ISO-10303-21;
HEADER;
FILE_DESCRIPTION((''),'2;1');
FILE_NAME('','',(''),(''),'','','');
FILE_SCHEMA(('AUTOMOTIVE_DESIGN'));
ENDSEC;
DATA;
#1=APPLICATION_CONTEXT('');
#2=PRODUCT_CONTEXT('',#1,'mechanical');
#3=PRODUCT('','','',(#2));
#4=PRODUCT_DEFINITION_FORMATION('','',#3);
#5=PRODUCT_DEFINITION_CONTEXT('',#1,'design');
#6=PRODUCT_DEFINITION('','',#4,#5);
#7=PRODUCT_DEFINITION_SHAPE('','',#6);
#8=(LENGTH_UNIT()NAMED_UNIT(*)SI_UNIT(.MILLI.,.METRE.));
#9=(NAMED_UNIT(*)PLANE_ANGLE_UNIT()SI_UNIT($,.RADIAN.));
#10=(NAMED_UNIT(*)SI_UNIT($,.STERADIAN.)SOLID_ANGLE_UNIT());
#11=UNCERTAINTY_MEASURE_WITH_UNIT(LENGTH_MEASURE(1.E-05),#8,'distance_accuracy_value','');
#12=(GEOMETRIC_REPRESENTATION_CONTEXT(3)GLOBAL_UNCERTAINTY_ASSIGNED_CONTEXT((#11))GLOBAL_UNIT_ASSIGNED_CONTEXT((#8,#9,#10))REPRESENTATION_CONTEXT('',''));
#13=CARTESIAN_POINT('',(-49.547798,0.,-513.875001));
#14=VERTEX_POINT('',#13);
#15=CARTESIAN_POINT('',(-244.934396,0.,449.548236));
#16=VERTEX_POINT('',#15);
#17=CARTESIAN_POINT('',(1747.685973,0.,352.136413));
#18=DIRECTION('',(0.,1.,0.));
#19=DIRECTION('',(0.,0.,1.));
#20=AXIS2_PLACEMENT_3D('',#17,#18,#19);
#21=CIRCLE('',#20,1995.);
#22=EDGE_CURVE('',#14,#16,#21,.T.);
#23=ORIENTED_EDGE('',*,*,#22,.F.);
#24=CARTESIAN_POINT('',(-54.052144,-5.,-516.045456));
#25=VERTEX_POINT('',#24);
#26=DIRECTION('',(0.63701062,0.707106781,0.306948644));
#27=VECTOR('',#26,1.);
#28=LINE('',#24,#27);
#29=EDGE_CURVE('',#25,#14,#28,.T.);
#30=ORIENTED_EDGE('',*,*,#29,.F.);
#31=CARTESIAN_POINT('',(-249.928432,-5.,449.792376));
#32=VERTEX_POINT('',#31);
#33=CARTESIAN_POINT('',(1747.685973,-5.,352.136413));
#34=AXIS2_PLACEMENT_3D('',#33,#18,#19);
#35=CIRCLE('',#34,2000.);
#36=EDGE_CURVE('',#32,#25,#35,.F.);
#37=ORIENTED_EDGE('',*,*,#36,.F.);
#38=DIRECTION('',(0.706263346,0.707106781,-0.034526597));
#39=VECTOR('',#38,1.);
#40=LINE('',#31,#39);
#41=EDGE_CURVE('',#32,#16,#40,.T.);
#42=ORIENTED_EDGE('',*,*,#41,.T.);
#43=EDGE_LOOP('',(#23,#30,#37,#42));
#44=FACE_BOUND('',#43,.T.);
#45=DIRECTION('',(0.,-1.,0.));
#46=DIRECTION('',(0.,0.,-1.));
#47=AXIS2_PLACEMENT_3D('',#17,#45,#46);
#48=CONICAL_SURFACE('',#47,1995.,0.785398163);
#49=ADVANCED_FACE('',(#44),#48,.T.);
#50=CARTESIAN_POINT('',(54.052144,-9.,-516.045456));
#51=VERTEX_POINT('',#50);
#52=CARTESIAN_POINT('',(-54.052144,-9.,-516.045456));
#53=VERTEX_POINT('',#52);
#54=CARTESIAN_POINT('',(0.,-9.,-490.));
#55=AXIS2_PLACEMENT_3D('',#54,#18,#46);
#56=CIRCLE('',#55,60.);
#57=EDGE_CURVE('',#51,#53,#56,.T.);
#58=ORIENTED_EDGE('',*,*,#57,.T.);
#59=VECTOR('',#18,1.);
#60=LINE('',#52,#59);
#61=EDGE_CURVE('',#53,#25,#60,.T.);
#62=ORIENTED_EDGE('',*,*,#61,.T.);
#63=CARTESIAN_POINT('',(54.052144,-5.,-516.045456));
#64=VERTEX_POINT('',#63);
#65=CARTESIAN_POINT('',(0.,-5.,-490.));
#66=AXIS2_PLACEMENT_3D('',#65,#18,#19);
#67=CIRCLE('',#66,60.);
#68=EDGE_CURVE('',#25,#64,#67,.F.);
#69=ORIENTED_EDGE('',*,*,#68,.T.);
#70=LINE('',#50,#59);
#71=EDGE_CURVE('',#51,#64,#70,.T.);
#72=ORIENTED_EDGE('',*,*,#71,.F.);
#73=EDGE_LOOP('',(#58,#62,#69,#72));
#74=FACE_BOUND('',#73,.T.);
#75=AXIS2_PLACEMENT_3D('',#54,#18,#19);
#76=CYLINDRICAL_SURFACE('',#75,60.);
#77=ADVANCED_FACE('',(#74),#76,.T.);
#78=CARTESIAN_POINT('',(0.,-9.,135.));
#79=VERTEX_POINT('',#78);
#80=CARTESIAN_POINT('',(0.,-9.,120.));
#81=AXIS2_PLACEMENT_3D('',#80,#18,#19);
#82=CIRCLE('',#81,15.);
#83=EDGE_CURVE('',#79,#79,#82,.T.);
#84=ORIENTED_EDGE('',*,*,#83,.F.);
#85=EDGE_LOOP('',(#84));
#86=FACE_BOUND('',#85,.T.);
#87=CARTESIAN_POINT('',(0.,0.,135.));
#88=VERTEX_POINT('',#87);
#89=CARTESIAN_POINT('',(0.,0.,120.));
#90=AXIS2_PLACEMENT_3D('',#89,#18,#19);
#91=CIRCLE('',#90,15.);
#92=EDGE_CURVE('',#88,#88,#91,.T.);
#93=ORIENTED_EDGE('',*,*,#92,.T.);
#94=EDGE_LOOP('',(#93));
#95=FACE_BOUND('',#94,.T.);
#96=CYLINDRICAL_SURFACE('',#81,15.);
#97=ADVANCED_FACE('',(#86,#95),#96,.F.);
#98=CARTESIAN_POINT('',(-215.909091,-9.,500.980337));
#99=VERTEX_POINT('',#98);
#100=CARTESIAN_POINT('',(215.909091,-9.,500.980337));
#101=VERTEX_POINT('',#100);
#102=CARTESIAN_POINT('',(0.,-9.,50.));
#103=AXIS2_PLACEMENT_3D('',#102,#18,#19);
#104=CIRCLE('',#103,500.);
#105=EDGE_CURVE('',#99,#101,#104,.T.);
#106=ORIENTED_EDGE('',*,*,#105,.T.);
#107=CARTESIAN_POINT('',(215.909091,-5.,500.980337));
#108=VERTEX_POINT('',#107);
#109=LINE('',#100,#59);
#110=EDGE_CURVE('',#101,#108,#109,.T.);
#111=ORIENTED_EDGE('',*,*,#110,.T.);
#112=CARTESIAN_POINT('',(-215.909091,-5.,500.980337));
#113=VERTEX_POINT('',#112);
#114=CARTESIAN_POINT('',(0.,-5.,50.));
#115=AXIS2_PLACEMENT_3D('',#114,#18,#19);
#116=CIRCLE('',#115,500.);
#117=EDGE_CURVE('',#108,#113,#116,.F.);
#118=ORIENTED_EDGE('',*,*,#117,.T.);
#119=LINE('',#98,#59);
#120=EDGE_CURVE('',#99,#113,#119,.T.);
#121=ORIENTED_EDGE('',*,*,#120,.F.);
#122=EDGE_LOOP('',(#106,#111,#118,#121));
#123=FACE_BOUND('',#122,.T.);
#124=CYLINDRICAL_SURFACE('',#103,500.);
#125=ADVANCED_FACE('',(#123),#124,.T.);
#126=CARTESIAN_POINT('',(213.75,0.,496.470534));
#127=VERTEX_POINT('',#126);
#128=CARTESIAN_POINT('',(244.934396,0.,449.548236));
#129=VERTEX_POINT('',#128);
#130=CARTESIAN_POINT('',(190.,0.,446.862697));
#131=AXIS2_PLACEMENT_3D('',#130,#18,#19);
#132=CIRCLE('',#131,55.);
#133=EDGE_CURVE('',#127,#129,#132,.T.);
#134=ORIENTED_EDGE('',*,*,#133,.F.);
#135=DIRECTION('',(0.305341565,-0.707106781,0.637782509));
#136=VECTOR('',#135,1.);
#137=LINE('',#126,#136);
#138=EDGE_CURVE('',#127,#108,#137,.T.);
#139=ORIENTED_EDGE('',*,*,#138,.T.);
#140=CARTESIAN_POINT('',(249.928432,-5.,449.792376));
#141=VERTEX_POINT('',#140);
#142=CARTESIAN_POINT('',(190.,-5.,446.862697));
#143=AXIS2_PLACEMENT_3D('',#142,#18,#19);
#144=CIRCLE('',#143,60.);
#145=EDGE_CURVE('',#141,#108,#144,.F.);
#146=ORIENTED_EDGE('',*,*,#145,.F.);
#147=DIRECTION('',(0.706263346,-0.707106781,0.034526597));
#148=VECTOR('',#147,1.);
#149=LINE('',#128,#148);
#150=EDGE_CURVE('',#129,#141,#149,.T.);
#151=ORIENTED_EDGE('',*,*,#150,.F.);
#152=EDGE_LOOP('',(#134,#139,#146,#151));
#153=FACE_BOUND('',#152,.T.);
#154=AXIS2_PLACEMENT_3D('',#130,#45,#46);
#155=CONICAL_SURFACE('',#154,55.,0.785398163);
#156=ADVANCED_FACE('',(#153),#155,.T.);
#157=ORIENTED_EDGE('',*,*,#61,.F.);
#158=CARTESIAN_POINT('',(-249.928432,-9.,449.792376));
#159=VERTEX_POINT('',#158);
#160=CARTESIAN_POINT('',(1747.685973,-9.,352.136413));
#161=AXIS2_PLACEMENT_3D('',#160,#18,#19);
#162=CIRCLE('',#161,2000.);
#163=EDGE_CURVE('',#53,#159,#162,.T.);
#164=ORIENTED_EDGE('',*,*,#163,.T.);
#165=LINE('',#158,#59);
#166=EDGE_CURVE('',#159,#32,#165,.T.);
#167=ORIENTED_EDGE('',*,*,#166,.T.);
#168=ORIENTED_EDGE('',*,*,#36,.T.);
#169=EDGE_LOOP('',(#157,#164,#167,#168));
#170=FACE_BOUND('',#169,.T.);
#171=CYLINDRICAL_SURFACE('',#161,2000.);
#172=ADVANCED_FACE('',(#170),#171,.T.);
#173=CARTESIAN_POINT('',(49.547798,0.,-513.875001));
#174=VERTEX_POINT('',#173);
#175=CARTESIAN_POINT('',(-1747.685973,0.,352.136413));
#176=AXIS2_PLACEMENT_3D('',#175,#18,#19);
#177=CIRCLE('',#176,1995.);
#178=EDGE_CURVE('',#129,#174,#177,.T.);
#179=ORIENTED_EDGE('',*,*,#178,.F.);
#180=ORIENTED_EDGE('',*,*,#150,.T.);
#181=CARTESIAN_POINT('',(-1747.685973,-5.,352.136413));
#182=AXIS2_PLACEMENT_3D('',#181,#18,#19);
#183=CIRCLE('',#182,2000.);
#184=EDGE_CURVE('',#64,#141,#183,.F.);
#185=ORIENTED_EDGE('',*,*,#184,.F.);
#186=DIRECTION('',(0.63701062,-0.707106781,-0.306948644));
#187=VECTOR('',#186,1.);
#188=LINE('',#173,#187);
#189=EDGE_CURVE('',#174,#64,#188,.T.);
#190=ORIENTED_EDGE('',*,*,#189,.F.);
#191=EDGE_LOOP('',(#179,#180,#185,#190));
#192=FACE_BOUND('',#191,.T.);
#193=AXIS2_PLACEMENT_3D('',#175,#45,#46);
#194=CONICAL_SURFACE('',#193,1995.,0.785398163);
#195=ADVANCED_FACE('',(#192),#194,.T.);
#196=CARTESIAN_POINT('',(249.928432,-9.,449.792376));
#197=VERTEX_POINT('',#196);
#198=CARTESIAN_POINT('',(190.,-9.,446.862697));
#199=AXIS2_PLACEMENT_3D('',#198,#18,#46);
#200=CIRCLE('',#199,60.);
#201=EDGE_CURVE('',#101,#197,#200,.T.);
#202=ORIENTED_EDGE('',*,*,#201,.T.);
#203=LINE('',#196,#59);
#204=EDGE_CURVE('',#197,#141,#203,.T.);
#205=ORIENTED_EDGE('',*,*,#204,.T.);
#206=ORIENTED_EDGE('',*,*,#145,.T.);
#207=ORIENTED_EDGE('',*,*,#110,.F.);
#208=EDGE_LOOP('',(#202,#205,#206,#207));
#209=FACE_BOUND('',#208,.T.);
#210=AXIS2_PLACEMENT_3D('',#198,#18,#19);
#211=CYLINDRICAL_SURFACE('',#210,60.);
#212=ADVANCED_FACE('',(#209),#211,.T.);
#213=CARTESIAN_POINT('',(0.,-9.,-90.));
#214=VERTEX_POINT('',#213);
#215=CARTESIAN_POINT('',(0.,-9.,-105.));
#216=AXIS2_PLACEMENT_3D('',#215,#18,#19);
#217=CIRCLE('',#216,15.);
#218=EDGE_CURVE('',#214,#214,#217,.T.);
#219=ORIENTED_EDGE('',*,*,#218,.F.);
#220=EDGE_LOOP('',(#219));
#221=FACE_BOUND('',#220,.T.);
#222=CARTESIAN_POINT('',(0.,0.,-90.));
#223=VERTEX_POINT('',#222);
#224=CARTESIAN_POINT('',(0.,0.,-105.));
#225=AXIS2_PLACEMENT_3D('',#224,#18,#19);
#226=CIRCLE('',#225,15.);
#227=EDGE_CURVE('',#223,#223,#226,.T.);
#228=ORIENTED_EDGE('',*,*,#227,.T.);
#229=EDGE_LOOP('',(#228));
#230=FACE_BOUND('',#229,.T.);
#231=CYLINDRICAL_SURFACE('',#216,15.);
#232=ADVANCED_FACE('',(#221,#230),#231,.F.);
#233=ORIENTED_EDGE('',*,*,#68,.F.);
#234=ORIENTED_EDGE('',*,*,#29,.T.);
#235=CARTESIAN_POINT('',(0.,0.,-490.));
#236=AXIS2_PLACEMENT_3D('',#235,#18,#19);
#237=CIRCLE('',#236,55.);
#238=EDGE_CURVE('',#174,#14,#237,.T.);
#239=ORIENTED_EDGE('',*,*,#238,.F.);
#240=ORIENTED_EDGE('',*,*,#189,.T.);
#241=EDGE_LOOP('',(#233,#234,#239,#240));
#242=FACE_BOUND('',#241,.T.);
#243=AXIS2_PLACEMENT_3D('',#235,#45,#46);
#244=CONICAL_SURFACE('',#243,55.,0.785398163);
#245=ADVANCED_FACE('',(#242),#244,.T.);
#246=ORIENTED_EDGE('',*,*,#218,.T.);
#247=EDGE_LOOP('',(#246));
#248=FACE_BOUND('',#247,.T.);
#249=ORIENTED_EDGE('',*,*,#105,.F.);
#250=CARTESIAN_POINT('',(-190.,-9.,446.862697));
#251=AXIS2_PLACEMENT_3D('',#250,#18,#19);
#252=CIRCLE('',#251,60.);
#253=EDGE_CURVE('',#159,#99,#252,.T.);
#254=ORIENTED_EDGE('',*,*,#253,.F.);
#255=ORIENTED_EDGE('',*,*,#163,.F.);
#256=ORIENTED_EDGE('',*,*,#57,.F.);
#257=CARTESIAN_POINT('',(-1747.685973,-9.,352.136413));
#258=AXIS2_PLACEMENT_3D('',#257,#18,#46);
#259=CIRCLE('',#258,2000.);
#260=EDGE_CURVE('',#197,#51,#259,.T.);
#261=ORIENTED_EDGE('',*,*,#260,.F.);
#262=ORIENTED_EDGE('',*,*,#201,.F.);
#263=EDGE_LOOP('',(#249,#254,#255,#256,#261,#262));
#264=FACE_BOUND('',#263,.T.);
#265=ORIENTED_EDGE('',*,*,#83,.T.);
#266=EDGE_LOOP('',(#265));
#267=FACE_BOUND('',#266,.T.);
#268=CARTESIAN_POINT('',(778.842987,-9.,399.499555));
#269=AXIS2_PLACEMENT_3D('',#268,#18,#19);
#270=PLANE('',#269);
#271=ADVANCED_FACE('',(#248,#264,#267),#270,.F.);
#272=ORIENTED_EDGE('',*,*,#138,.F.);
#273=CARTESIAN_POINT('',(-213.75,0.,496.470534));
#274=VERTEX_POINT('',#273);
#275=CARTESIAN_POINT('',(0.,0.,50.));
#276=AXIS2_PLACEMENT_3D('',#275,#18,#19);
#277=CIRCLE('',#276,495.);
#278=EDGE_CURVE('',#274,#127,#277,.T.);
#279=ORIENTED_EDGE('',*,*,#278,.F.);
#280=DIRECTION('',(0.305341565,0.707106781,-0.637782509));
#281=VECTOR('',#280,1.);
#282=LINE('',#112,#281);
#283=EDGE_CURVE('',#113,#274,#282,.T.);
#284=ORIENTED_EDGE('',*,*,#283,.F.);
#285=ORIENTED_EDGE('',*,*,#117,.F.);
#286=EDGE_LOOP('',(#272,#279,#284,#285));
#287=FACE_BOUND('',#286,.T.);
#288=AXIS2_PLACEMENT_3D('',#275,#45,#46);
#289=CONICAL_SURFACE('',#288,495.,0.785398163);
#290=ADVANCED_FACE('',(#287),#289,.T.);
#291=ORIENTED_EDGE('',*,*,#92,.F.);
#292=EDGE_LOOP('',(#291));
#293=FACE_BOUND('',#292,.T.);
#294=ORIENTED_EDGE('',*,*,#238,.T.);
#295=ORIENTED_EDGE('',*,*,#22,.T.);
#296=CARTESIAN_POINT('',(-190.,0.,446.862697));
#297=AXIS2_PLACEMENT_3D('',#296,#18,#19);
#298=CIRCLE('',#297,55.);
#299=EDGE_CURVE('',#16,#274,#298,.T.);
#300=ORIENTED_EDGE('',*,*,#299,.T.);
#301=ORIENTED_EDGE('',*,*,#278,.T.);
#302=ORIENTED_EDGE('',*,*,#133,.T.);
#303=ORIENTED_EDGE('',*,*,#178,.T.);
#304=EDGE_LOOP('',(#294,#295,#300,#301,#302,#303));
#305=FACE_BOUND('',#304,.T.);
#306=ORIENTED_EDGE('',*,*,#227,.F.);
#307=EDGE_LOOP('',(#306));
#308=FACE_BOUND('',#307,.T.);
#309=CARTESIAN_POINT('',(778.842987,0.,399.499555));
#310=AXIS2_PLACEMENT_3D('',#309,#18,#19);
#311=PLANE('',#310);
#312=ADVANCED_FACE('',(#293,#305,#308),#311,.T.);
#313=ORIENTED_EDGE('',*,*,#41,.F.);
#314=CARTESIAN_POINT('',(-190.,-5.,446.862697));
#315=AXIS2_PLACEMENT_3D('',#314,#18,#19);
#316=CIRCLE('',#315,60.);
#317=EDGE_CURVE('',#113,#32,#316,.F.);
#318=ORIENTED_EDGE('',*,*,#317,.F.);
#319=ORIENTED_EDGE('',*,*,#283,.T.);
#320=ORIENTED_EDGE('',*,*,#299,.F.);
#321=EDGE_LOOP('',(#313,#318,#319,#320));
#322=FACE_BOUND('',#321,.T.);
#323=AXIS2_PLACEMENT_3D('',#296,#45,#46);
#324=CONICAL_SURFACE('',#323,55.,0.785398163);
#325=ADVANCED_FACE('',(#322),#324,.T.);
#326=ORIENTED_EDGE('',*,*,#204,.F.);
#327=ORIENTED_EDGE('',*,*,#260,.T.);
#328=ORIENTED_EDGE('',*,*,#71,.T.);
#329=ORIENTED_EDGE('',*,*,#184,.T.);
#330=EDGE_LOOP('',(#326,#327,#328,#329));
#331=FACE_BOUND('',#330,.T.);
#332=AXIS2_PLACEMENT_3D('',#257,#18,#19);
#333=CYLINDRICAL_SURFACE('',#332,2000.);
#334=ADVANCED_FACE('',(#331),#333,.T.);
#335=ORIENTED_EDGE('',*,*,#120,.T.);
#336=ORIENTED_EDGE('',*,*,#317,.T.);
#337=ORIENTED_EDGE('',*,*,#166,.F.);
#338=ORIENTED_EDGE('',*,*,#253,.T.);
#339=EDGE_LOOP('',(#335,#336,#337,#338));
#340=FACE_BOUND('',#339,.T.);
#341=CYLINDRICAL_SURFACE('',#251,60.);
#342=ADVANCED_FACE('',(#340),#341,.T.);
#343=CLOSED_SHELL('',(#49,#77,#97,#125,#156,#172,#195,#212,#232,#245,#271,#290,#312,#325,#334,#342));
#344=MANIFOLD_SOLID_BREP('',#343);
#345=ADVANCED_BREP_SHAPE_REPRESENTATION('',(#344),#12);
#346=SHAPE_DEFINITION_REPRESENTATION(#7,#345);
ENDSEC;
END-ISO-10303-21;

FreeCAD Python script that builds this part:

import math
import FreeCAD as App
import Part
import Sketcher
from FreeCAD import Vector


def edges_at(feature, points):
    """Names of the edges that pass closest to the given points."""
    edges = feature.Shape.Edges
    near = lambda p: min(range(len(edges)), key=lambda i: edges[i].distToShape(Part.Vertex(*p))[0])
    return sorted({f"Edge{near(p) + 1}" for p in points})

doc = App.newDocument("Part")
params = doc.addObject("Spreadsheet::Sheet", "Params")
for row, (alias, value) in enumerate([
    ("sketch1_radius", "60 mm"),
    ("sketch1_radius2", "2000 mm"),
    ("sketch1_radius3", "500 mm"),
    ("pad1_length", "9 mm"),
    ("chamfer_size", "5 mm"),
    ("sketch2_diameter", "30 mm"),
], start=1):
    params.set(f"A{row}", alias)
    params.set(f"B{row}", "=" + value)
    params.setAlias(f"B{row}", alias)

body = doc.addObject("PartDesign::Body", "Body")

sketch1 = doc.addObject("Sketcher::SketchObject", "Sketch")
body.addObject(sketch1)
sketch1.AttachmentSupport = (doc.XZ_Plane, [""])
sketch1.MapMode = "FlatFace"
sketch1.addGeometry(Part.ArcOfCircle(Part.Circle(Vector(0, -490, 0), Vector(0, 0, 1), 60), math.radians(-154), math.radians(-26)), False)
sketch1.addGeometry(Part.ArcOfCircle(Part.Circle(Vector(1748, 352, 0), Vector(0, 0, 1), 2000), math.radians(177), math.radians(206)), False)
sketch1.addGeometry(Part.ArcOfCircle(Part.Circle(Vector(-190, 447, 0), Vector(0, 0, 1), 60), math.radians(116), math.radians(177)), False)
sketch1.addGeometry(Part.ArcOfCircle(Part.Circle(Vector(0, 50, 0), Vector(0, 0, 1), 500), math.radians(64), math.radians(116)), False)
sketch1.addGeometry(Part.ArcOfCircle(Part.Circle(Vector(190, 447, 0), Vector(0, 0, 1), 60), math.radians(3), math.radians(64)), False)
sketch1.addGeometry(Part.ArcOfCircle(Part.Circle(Vector(-1748, 352, 0), Vector(0, 0, 1), 2000), math.radians(-26), math.radians(3)), False)
sketch1.addConstraint(Sketcher.Constraint("Tangent", 0, 1, 1, 2))
sketch1.addConstraint(Sketcher.Constraint("Tangent", 1, 1, 2, 2))
sketch1.addConstraint(Sketcher.Constraint("Tangent", 2, 1, 3, 2))
sketch1.addConstraint(Sketcher.Constraint("Tangent", 3, 1, 4, 2))
sketch1.addConstraint(Sketcher.Constraint("Tangent", 4, 1, 5, 2))
sketch1.addConstraint(Sketcher.Constraint("Tangent", 5, 1, 0, 2))
sketch1.addConstraint(Sketcher.Constraint("Equal", 0, 2))
sketch1.addConstraint(Sketcher.Constraint("Equal", 2, 4))
sketch1.addConstraint(Sketcher.Constraint("Equal", 1, 5))
sketch1.addConstraint(Sketcher.Constraint("Symmetric", 2, 3, 4, 3, -2))
sketch1.addConstraint(Sketcher.Constraint("PointOnObject", 0, 3, -2))
sketch1.addConstraint(Sketcher.Constraint("Radius", 0, 60.0))
sketch1.addConstraint(Sketcher.Constraint("Radius", 1, 2000.0))
sketch1.addConstraint(Sketcher.Constraint("Radius", 3, 500.0))
sketch1.addConstraint(Sketcher.Constraint("DistanceY", 0, 3, -1, 1, 490.0))
sketch1.addConstraint(Sketcher.Constraint("DistanceX", 2, 3, -1, 1, 190.0))
sketch1.addConstraint(Sketcher.Constraint("DistanceY", -1, 1, 3, 3, 50.0))
sketch1.setExpression("Constraints[11]", "Params.sketch1_radius")
sketch1.setExpression("Constraints[12]", "Params.sketch1_radius2")
sketch1.setExpression("Constraints[13]", "Params.sketch1_radius3")
pad1 = doc.addObject("PartDesign::Pad", "Pad")
body.addObject(pad1)
pad1.Profile = sketch1
pad1.setExpression("Length", "Params.pad1_length")
doc.recompute()

chamfer = doc.addObject("PartDesign::Chamfer", "Chamfer")
body.addObject(chamfer)
chamfer.Base = (pad1, edges_at(pad1, [
    (0, 0, -550),
    (212.411, 0, -45.38),
    (239.971, 0, 480.073),
    (0, 0, 550),
    (-239.971, 0, 480.073),
    (-212.411, 0, -45.38),
]))
chamfer.setExpression("Size", "Params.chamfer_size")

sketch2 = doc.addObject("Sketcher::SketchObject", "Sketch001")
body.addObject(sketch2)
sketch2.AttachmentSupport = (doc.XZ_Plane, [""])
sketch2.MapMode = "FlatFace"
sketch2.addGeometry(Part.Circle(Vector(0, -105, 0), Vector(0, 0, 1), 15), False)
sketch2.addGeometry(Part.Circle(Vector(0, 120, 0), Vector(0, 0, 1), 15), False)
sketch2.addConstraint(Sketcher.Constraint("Equal", 0, 1))
sketch2.addConstraint(Sketcher.Constraint("PointOnObject", 0, 3, -2))
sketch2.addConstraint(Sketcher.Constraint("PointOnObject", 1, 3, -2))
sketch2.addConstraint(Sketcher.Constraint("Diameter", 0, 30.0))
sketch2.addConstraint(Sketcher.Constraint("DistanceY", 0, 3, -1, 1, 105.0))
sketch2.addConstraint(Sketcher.Constraint("DistanceY", -1, 1, 1, 3, 120.0))
sketch2.setExpression("Constraints[3]", "Params.sketch2_diameter")
pocket1 = doc.addObject("PartDesign::Pocket", "Pocket")
body.addObject(pocket1)
pocket1.Profile = sketch2
pocket1.Type = "ThroughAll"
pocket1.Reversed = True

doc.recompute()
